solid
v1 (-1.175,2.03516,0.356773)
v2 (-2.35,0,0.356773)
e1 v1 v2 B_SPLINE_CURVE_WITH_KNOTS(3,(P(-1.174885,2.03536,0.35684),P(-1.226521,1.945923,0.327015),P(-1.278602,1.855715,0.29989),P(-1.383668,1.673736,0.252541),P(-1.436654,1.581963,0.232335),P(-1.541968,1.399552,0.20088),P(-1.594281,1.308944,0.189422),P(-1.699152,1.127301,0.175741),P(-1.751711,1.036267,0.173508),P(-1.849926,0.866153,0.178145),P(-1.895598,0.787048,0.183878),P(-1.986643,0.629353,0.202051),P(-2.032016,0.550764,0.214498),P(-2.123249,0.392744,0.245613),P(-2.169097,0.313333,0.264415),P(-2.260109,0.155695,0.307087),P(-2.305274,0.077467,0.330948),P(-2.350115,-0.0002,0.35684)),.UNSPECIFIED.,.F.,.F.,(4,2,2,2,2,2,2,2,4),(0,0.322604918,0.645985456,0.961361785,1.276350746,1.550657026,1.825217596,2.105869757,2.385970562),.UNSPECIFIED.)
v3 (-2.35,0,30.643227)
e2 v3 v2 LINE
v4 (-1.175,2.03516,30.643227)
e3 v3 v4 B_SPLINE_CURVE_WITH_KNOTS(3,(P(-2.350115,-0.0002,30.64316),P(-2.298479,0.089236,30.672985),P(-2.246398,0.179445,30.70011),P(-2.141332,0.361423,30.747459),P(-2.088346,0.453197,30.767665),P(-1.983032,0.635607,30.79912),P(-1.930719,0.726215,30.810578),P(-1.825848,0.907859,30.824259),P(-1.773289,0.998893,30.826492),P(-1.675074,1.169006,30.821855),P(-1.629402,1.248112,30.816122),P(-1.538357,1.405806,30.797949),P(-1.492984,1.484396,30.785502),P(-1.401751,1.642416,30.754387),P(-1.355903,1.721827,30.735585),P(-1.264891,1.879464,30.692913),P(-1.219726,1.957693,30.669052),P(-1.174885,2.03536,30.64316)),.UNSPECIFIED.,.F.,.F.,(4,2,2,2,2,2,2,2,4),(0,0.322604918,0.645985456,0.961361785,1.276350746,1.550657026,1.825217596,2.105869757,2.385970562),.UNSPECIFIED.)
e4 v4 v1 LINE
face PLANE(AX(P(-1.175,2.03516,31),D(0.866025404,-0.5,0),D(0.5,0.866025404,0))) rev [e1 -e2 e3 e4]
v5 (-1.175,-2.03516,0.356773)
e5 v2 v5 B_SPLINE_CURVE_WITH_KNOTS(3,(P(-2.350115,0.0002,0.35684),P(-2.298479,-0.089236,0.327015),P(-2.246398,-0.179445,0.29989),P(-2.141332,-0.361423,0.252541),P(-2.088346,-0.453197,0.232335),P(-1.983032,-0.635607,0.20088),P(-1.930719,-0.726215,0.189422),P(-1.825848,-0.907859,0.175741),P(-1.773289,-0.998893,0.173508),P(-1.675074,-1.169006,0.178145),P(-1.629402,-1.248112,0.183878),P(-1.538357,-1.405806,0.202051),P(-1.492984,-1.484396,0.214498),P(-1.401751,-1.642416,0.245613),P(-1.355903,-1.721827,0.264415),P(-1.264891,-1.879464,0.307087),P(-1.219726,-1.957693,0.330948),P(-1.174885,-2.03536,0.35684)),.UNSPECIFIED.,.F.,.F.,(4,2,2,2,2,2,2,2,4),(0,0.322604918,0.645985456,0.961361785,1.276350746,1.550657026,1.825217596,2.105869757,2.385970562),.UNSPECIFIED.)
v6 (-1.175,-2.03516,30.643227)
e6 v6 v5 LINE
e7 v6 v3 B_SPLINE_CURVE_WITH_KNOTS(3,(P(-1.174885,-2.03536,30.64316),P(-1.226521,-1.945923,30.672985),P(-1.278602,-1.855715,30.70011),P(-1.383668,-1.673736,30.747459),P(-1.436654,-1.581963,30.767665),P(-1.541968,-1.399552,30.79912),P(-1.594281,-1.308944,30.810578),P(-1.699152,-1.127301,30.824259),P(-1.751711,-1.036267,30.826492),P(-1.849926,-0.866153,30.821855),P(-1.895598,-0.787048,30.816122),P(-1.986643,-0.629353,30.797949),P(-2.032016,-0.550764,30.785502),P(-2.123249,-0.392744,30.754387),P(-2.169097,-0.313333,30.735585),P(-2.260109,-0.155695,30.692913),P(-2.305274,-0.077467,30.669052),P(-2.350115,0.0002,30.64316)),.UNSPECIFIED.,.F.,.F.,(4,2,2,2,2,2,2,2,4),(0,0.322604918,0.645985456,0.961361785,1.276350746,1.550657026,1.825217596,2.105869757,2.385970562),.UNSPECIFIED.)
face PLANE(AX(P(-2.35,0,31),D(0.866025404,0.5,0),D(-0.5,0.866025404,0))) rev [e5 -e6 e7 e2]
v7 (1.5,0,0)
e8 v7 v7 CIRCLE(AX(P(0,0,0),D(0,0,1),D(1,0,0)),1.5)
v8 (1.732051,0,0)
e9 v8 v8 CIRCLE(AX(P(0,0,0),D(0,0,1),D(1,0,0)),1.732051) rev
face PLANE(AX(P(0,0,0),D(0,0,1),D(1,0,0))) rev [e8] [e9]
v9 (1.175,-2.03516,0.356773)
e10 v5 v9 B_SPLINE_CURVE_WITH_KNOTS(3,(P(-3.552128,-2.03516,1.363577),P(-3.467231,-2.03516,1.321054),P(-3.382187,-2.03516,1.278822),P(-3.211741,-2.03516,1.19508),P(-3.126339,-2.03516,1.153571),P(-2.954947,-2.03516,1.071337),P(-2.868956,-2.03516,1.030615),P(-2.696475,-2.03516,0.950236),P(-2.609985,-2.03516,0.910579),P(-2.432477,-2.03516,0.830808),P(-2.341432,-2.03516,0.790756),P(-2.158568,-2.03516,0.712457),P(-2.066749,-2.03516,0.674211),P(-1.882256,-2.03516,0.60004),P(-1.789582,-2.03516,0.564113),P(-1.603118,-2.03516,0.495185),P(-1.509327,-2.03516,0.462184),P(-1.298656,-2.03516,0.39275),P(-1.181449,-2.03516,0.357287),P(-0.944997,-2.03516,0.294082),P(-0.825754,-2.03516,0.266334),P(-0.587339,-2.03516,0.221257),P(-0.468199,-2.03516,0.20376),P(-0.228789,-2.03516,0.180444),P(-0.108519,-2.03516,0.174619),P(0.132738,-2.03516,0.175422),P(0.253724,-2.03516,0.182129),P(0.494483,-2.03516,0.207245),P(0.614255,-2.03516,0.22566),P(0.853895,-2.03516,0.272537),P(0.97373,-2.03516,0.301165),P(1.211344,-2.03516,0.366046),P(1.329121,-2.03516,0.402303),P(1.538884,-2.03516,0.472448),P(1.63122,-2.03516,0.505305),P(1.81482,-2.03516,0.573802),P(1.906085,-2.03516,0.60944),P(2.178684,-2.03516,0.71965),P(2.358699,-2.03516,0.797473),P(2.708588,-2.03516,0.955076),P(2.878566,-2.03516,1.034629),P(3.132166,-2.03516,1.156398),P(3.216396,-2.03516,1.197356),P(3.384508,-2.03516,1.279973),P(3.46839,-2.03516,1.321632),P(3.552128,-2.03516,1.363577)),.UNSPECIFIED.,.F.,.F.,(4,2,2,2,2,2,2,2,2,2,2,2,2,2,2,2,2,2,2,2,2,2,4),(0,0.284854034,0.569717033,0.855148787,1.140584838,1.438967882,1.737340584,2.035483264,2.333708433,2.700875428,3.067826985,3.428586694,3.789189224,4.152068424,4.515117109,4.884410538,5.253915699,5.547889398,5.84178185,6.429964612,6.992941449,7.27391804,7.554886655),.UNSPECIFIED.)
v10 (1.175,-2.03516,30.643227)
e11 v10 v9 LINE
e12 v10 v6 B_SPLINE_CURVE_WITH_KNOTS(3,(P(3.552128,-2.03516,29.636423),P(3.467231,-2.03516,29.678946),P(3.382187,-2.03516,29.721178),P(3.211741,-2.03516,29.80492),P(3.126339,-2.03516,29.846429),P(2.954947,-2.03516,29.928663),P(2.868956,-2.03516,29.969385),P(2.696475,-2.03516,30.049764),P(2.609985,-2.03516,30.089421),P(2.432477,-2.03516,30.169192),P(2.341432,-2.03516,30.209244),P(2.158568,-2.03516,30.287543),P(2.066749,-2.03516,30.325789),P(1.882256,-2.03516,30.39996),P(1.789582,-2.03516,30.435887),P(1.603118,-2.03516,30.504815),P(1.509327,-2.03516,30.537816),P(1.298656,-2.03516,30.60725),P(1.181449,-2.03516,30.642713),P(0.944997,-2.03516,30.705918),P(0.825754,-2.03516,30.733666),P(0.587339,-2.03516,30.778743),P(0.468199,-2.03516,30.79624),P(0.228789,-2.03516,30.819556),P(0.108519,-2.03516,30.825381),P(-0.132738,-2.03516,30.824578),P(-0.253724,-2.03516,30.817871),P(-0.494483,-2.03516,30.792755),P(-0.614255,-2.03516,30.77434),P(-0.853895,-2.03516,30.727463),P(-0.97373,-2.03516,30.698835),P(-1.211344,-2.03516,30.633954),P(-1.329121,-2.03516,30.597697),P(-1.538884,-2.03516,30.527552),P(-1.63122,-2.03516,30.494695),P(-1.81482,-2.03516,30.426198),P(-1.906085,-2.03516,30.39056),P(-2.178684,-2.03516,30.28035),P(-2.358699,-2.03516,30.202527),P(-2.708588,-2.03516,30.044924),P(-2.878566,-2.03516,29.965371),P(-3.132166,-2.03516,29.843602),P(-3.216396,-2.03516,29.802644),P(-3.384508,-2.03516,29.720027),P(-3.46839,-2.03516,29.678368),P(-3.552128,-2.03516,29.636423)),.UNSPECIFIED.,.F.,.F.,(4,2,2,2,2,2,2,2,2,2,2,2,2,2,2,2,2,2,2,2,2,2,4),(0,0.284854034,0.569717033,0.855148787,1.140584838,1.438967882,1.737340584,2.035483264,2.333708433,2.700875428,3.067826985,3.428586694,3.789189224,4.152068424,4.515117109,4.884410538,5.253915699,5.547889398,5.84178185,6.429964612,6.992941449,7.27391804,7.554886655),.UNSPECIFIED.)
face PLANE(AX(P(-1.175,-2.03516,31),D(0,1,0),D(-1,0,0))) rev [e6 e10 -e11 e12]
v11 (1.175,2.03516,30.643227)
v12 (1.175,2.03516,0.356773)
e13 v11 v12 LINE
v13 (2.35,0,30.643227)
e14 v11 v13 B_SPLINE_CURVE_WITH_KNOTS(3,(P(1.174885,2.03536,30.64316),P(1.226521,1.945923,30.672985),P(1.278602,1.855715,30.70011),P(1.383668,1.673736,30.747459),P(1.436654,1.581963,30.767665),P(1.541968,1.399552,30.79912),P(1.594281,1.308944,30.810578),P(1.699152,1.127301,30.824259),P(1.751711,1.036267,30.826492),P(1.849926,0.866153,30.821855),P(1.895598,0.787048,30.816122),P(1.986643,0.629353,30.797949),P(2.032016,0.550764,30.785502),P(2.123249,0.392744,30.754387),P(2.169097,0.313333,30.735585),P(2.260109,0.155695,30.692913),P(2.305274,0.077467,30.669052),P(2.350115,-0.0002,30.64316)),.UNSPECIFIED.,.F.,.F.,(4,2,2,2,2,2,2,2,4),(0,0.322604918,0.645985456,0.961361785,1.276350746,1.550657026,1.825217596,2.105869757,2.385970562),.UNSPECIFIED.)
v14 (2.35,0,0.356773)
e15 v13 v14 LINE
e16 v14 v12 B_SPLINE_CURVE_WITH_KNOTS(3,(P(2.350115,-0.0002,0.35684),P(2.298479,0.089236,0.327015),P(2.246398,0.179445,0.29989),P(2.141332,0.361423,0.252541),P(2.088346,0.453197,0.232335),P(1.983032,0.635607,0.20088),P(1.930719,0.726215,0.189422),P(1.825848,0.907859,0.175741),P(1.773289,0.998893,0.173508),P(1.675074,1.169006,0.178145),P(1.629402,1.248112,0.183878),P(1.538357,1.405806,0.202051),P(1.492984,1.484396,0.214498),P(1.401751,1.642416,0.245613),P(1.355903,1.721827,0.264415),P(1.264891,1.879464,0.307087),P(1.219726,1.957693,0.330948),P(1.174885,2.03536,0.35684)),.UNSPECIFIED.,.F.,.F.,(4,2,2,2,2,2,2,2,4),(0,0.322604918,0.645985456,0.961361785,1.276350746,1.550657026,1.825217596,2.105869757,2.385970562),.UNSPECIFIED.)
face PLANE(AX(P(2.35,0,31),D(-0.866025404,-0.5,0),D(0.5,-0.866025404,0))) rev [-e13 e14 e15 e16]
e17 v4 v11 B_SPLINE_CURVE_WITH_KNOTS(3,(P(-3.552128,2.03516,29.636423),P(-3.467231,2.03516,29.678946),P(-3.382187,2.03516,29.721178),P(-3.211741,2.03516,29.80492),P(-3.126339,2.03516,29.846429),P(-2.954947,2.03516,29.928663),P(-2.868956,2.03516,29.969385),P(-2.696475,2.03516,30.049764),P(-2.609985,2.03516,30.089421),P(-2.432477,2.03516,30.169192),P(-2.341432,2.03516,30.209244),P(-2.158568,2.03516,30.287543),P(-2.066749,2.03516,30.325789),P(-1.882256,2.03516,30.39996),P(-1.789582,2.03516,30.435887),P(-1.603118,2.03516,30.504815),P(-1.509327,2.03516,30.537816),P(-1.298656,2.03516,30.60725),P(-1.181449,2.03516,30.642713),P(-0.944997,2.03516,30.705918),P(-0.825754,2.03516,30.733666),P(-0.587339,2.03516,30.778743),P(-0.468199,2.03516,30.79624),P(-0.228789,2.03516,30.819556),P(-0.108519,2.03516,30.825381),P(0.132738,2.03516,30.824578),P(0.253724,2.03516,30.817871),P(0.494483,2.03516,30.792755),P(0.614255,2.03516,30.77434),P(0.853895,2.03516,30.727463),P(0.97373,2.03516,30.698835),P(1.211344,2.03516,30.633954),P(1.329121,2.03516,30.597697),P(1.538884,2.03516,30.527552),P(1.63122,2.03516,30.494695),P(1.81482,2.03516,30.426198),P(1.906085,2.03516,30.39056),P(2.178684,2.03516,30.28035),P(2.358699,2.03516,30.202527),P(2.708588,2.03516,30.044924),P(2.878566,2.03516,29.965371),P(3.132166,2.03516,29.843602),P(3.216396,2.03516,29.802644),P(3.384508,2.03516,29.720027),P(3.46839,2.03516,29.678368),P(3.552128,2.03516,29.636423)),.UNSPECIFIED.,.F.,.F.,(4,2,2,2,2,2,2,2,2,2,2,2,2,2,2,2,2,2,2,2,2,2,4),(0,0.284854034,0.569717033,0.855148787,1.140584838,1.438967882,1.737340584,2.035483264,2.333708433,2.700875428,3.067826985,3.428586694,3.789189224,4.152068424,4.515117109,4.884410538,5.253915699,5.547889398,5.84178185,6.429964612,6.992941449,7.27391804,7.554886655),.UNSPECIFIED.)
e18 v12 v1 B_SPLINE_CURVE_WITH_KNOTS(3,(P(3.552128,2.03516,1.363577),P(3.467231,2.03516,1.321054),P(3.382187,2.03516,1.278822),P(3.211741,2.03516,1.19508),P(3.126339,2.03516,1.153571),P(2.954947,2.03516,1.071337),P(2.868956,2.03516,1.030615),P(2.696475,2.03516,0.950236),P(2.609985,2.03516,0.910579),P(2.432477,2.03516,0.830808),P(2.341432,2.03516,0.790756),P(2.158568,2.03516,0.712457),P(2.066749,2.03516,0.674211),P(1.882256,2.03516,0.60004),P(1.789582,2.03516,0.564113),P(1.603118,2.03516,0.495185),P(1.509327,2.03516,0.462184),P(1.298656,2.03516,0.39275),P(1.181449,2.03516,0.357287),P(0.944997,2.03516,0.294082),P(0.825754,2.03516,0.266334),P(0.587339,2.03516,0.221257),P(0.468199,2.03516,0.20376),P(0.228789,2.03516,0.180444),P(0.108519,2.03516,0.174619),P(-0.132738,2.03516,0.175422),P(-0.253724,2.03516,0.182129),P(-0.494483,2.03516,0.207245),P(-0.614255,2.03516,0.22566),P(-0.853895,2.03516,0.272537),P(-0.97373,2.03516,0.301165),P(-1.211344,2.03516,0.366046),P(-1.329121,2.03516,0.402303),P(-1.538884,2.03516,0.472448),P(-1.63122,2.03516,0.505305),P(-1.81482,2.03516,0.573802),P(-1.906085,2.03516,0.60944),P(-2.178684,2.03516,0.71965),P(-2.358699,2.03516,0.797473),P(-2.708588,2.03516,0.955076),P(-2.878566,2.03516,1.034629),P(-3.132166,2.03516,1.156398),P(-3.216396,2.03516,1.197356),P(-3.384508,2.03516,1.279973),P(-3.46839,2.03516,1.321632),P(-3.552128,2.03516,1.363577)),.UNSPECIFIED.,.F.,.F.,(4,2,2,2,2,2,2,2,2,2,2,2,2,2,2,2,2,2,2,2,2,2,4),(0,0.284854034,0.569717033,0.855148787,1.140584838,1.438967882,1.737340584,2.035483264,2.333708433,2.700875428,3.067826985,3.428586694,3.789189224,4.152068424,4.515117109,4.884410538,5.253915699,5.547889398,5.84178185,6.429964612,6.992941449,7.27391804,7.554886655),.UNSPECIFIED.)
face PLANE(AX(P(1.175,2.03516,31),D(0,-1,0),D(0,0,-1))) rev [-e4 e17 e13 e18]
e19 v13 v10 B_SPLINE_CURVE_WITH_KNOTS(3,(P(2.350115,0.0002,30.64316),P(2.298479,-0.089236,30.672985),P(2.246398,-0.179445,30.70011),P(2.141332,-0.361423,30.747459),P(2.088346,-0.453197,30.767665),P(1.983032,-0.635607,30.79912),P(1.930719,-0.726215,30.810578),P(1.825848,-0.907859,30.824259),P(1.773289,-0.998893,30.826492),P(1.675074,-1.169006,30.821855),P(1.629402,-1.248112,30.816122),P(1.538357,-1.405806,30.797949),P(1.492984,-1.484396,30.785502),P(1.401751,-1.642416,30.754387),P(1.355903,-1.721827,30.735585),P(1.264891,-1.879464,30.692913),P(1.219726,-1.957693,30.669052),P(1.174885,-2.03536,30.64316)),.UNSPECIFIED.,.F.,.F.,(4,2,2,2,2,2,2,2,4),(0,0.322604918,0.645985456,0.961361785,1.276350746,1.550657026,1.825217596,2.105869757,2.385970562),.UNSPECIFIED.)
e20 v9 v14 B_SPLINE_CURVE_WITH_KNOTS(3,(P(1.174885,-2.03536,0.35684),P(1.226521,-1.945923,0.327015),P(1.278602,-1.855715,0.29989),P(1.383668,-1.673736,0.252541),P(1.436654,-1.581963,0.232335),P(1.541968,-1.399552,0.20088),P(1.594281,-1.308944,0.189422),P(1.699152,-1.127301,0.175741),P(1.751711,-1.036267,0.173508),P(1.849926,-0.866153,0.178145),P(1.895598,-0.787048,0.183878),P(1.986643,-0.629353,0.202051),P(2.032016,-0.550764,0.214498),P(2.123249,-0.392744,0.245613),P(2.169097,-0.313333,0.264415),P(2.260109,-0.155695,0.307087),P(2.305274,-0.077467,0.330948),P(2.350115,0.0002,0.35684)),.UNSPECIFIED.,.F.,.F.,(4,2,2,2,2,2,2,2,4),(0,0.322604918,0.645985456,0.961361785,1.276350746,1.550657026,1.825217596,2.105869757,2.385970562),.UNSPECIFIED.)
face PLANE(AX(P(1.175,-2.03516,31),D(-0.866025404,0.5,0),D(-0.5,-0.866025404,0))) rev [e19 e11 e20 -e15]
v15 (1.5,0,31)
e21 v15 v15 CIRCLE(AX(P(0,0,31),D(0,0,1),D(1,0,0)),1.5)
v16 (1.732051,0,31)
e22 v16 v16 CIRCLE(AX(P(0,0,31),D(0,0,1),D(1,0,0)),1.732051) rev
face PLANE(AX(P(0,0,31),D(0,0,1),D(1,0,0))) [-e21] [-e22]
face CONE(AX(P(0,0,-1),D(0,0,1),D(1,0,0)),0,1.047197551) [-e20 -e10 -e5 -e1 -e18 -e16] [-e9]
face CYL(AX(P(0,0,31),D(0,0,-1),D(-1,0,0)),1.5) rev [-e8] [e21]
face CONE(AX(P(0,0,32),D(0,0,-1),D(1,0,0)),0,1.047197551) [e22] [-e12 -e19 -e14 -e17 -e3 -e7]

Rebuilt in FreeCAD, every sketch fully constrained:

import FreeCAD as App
import Part
import Sketcher
from FreeCAD import Vector
Q = App.Units.Quantity

doc = App.newDocument("Part")
body = doc.addObject("PartDesign::Body", "Body")

sketch1 = body.newObject("Sketcher::SketchObject", "Sketch")
sketch1.AttachmentSupport = (doc.getObject("XY_Plane"), [""])
sketch1.MapMode = "FlatFace"
sketch1.addGeometry(Part.LineSegment(Vector(2.35, 0, 0), Vector(1.175, 2.03516, 0)), False)
sketch1.addGeometry(Part.LineSegment(Vector(1.175, 2.03516, 0), Vector(-1.175, 2.03516, 0)), False)
sketch1.addGeometry(Part.LineSegment(Vector(-1.175, 2.03516, 0), Vector(-2.35, 0, 0)), False)
sketch1.addGeometry(Part.LineSegment(Vector(-2.35, 0, 0), Vector(-1.175, -2.03516, 0)), False)
sketch1.addGeometry(Part.LineSegment(Vector(-1.175, -2.03516, 0), Vector(1.175, -2.03516, 0)), False)
sketch1.addGeometry(Part.LineSegment(Vector(1.175, -2.03516, 0), Vector(2.35, 0, 0)), False)
sketch1.addGeometry(Part.Circle(Vector(0, 0, 0), Vector(0, 0, 1), 1.5), False)
sketch1.addConstraint(Sketcher.Constraint("Coincident", 0, 2, 1, 1))
sketch1.addConstraint(Sketcher.Constraint("Coincident", 1, 2, 2, 1))
sketch1.addConstraint(Sketcher.Constraint("Coincident", 2, 2, 3, 1))
sketch1.addConstraint(Sketcher.Constraint("Coincident", 3, 2, 4, 1))
sketch1.addConstraint(Sketcher.Constraint("Coincident", 4, 2, 5, 1))
sketch1.addConstraint(Sketcher.Constraint("Coincident", 5, 2, 0, 1))
sketch1.addConstraint(Sketcher.Constraint("Horizontal", 1))
sketch1.addConstraint(Sketcher.Constraint("Horizontal", 4))
sketch1.addConstraint(Sketcher.Constraint("Coincident", 6, 3, -1, 1))
sketch1.addConstraint(Sketcher.Constraint("Symmetric", 0, 2, 3, 2, -1, 1))
sketch1.addConstraint(Sketcher.Constraint("Symmetric", 2, 2, 5, 2, -1, 1))
sketch1.addConstraint(Sketcher.Constraint("PointOnObject", 2, 2, -1))
sketch1.addConstraint(Sketcher.Constraint("Parallel", 2, 5))
sketch1.addConstraint(Sketcher.Constraint("Vertical", 1, 2, 3, 2))
sketch1.addConstraint(Sketcher.Constraint("Diameter", 6, Q("3 mm")))
sketch1.addConstraint(Sketcher.Constraint("Angle", 0, Q("120 deg")))
sketch1.addConstraint(Sketcher.Constraint("DistanceX", 1, 2, 1, 1, Q("2.35 mm")))
sketch1.addConstraint(Sketcher.Constraint("Distance", 0, Q("2.35 mm")))
pad1 = body.newObject("PartDesign::Pad", "Pad")
pad1.Profile = sketch1
pad1.Length = 31

sketch2 = body.newObject("Sketcher::SketchObject", "Sketch001")
sketch2.AttachmentSupport = (doc.getObject("XZ_Plane"), [""])
sketch2.MapMode = "FlatFace"
sketch2.addGeometry(Part.LineSegment(Vector(0, -1, 0), Vector(2.35, 0.356773, 0)), False)
sketch2.addGeometry(Part.LineSegment(Vector(2.35, 0.356773, 0), Vector(2.35, -2.686947, 0)), False)
sketch2.addGeometry(Part.LineSegment(Vector(2.35, -2.686947, 0), Vector(0, -2.686947, 0)), False)
sketch2.addGeometry(Part.LineSegment(Vector(0, -2.686947, 0), Vector(0, -1, 0)), False)
sketch2.addConstraint(Sketcher.Constraint("Coincident", 0, 2, 1, 1))
sketch2.addConstraint(Sketcher.Constraint("Coincident", 1, 2, 2, 1))
sketch2.addConstraint(Sketcher.Constraint("Coincident", 2, 2, 3, 1))
sketch2.addConstraint(Sketcher.Constraint("Coincident", 3, 2, 0, 1))
sketch2.addConstraint(Sketcher.Constraint("Vertical", 1))
sketch2.addConstraint(Sketcher.Constraint("Horizontal", 2))
sketch2.addConstraint(Sketcher.Constraint("Vertical", 3))
sketch2.addConstraint(Sketcher.Constraint("PointOnObject", 2, 2, -2))
sketch2.addConstraint(Sketcher.Constraint("Angle", 0, Q("30 deg")))
sketch2.addConstraint(Sketcher.Constraint("DistanceY", 3, 2, -1, 1, Q("1 mm")))
sketch2.addConstraint(Sketcher.Constraint("DistanceX", 2, 2, 2, 1, Q("2.35 mm")))
sketch2.addConstraint(Sketcher.Constraint("DistanceY", 1, 2, 1, 1, Q("3.04372 mm")))
groove = body.newObject("PartDesign::Groove", "Groove")
groove.Profile = sketch2
groove.ReferenceAxis = (sketch2, ["V_Axis"])
groove.Angle = 360
doc.recompute()

datumplane = body.newObject("PartDesign::Plane", "DatumPlane")
datumplane.AttachmentSupport = (doc.getObject("XY_Plane"), [""])
datumplane.MapMode = "FlatFace"
datumplane.AttachmentOffset = App.Placement(Vector(0, 0, 15.5), App.Rotation())
mirrored = body.newObject("PartDesign::Mirrored", "Mirrored")
mirrored.Originals = [groove]
mirrored.MirrorPlane = (datumplane, [""])
body.Tip = mirrored

doc.recompute()
